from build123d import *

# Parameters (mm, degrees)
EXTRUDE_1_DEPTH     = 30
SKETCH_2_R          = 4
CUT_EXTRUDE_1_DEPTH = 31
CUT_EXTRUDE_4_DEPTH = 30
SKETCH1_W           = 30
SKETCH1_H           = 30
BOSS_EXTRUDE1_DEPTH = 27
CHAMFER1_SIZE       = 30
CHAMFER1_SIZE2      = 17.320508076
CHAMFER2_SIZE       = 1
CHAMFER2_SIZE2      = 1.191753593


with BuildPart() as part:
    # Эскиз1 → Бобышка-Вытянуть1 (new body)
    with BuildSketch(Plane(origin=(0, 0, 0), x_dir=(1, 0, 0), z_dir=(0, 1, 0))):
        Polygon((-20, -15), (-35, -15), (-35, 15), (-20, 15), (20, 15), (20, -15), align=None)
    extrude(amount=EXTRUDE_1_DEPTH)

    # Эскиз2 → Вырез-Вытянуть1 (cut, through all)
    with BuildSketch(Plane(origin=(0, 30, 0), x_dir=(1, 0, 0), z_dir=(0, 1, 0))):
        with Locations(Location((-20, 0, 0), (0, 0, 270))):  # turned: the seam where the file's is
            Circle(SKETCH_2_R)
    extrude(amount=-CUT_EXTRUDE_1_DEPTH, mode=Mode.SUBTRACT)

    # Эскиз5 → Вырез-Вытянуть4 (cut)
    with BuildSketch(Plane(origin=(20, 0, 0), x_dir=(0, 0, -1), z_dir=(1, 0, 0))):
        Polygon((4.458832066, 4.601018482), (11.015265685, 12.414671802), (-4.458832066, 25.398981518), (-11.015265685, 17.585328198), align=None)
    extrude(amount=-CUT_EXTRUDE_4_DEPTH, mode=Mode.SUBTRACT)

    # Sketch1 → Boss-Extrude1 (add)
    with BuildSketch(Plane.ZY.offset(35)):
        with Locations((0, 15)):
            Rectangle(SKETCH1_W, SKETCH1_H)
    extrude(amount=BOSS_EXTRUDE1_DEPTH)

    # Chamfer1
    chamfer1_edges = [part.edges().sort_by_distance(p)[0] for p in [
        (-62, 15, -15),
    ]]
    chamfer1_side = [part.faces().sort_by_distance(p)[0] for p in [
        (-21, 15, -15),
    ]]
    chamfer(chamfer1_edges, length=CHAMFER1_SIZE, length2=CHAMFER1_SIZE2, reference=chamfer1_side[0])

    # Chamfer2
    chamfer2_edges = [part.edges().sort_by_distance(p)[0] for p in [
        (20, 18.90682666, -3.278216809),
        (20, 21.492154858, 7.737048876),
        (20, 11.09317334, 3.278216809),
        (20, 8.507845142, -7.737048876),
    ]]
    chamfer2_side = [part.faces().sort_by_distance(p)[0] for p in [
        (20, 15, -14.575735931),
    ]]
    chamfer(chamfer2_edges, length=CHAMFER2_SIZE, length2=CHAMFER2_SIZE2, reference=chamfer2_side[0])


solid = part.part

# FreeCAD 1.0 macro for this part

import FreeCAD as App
import Part
import Sketcher

V = App.Vector
Q = App.Units.Quantity


def edges_at(feature, points):
    """Names of the edges that pass closest to the given points."""
    edges = feature.Shape.Edges
    near = lambda p: min(range(len(edges)), key=lambda i: edges[i].distToShape(Part.Vertex(*p))[0])
    return sorted({f"Edge{near(p) + 1}" for p in points})


def add_polygon(sketch, points):
    """Adds a closed chain of lines whose ends are joined by coincident constraints."""
    first, n = sketch.GeometryCount, len(points)
    for a, b in zip(points, points[1:] + points[:1]):
        sketch.addGeometry(Part.LineSegment(App.Vector(*a, 0), App.Vector(*b, 0)), False)
    for i in range(n):
        sketch.addConstraint(Sketcher.Constraint("Coincident", first + i, 2, first + (i + 1) % n, 1))

doc = App.newDocument("Part")
body = doc.addObject("PartDesign::Body", "Body")

sketch1 = body.newObject("Sketcher::SketchObject", "Sketch")
sketch1.AttachmentSupport = (doc.getObject("XZ_Plane"), [""])
sketch1.MapMode = "FlatFace"
add_polygon(sketch1, [(-35, 15), (20, 15), (20, -15), (-35, -15)])
sketch1.addConstraint([
    Sketcher.Constraint("Horizontal", 0),
    Sketcher.Constraint("Vertical", 1),
    Sketcher.Constraint("Horizontal", 2),
    Sketcher.Constraint("Vertical", 3),
    Sketcher.Constraint("DistanceX", 0, 1, 0, 2, 55.0),
    Sketcher.Constraint("DistanceY", 1, 2, 1, 1, 30.0),
    Sketcher.Constraint("DistanceX", -1, 1, 0, 2, 20.0),
    Sketcher.Constraint("DistanceY", -1, 1, 0, 2, 15.0),
])
pad1 = body.newObject("PartDesign::Pad", "Pad")
pad1.Profile = sketch1
pad1.Length = 30
pad1.Reversed = True

sketch2 = body.newObject("Sketcher::SketchObject", "Sketch001")
sketch2.AttachmentSupport = (doc.getObject("XZ_Plane"), [""])
sketch2.MapMode = "FlatFace"
sketch2.AttachmentOffset = App.Placement(V(0, 0, -30), App.Rotation())
sketch2.addGeometry(Part.Circle(V(-20, 0, 0), V(0, 0, 1), 4), False)
sketch2.addConstraint([
    Sketcher.Constraint("PointOnObject", 0, 3, -1),
    Sketcher.Constraint("Diameter", 0, 8.0),
    Sketcher.Constraint("DistanceX", 0, 3, -1, 1, 20.0),
])
pocket1 = body.newObject("PartDesign::Pocket", "Pocket")
pocket1.Profile = sketch2
pocket1.Type = "ThroughAll"
pocket1.Reversed = True

sketch3 = body.newObject("Sketcher::SketchObject", "Sketch002")
sketch3.AttachmentSupport = (doc.getObject("YZ_Plane"), [""])
sketch3.MapMode = "FlatFace"
sketch3.AttachmentOffset = App.Placement(V(0, 0, 20), App.Rotation())
add_polygon(sketch3, [(4.601018, -4.458832), (12.414672, -11.015266), (25.398982, 4.458832), (17.585328, 11.015266)])
sketch3.addConstraint([
    Sketcher.Constraint("Perpendicular", 0, 1),
    Sketcher.Constraint("Perpendicular", 1, 2),
    Sketcher.Constraint("Perpendicular", 2, 3),
    Sketcher.Constraint("Angle", 0, Q("-40 deg")),
    Sketcher.Constraint("Distance", 0, 10.2),
    Sketcher.Constraint("Distance", 1, 20.2),
    Sketcher.Constraint("DistanceX", -1, 1, 0, 2, 12.414672),
    Sketcher.Constraint("DistanceY", 0, 2, -1, 1, 11.015266),
])
pocket2 = body.newObject("PartDesign::Pocket", "Pocket001")
pocket2.Profile = sketch3
pocket2.Length = 30

sketch4 = body.newObject("Sketcher::SketchObject", "Sketch003")
sketch4.AttachmentSupport = (doc.getObject("YZ_Plane"), [""])
sketch4.MapMode = "FlatFace"
sketch4.AttachmentOffset = App.Placement(V(0, 0, -35), App.Rotation())
add_polygon(sketch4, [(30, -15), (0, -15), (0, 15), (30, 15)])
sketch4.addConstraint([
    Sketcher.Constraint("Horizontal", 0),
    Sketcher.Constraint("Vertical", 1),
    Sketcher.Constraint("Horizontal", 2),
    Sketcher.Constraint("Vertical", 3),
    Sketcher.Constraint("Symmetric", 0, 2, 1, 2, -1, 1),
    Sketcher.Constraint("Equal", 2, 1),
    Sketcher.Constraint("DistanceX", 0, 2, 0, 1, 30.0),
])
pad2 = body.newObject("PartDesign::Pad", "Pad001")
pad2.Profile = sketch4
pad2.Length = 27
pad2.Reversed = True
doc.recompute()

chamfer = body.newObject("PartDesign::Chamfer", "Chamfer")
chamfer.Base = (pad2, edges_at(pad2, [(-62, 15, -15)]))
chamfer.ChamferType = "Two distances"
chamfer.Size = 30
chamfer.Size2 = 17.320508
chamfer.FlipDirection = True
doc.recompute()

chamfer2 = body.newObject("PartDesign::Chamfer", "Chamfer001")
chamfer2.Base = (chamfer, edges_at(chamfer, [
    (20, 18.907, -3.278),
    (20, 21.492, 7.737),
    (20, 11.093, 3.278),
    (20, 8.508, -7.737),
]))
chamfer2.ChamferType = "Two distances"
chamfer2.Size = 1
chamfer2.Size2 = 1.191754

doc.recompute()
